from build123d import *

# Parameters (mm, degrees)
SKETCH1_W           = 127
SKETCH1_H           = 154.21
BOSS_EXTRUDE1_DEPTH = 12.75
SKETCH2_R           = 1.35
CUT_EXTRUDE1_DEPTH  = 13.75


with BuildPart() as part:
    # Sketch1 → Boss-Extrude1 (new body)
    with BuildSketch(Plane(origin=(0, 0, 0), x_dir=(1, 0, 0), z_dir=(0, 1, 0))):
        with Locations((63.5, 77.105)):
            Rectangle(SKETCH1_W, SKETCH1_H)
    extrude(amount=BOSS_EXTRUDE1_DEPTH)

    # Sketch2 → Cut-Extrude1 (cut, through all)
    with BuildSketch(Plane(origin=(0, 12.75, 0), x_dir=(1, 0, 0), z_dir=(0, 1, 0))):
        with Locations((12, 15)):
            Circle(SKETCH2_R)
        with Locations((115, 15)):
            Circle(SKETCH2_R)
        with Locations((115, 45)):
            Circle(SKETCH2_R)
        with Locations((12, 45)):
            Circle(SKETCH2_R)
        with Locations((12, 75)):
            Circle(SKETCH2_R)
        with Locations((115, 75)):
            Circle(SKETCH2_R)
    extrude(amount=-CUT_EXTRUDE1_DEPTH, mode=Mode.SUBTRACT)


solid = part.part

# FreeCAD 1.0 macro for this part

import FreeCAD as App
import Part
import Sketcher

V = App.Vector


def add_polygon(sketch, points):
    """Adds a closed chain of lines whose ends are joined by coincident constraints."""
    first, n = sketch.GeometryCount, len(points)
    for a, b in zip(points, points[1:] + points[:1]):
        sketch.addGeometry(Part.LineSegment(App.Vector(*a, 0), App.Vector(*b, 0)), False)
    for i in range(n):
        sketch.addConstraint(Sketcher.Constraint("Coincident", first + i, 2, first + (i + 1) % n, 1))

doc = App.newDocument("Part")
params = doc.addObject("Spreadsheet::Sheet", "Params")
for row, (alias, value) in enumerate([
    ("sketch1_width", "127 mm"),
    ("sketch1_height", "154.21 mm"),
    ("pad1_length", "12.75 mm"),
    ("sketch2_diameter", "2.7 mm"),
], start=1):
    params.set(f"A{row}", alias)
    params.set(f"B{row}", "=" + value)
    params.setAlias(f"B{row}", alias)

body = doc.addObject("PartDesign::Body", "Body")

sketch1 = body.newObject("Sketcher::SketchObject", "Sketch")
sketch1.AttachmentSupport = (doc.getObject("XZ_Plane"), [""])
sketch1.MapMode = "FlatFace"
add_polygon(sketch1, [(0, -154.21), (0, 0), (127, 0), (127, -154.21)])
sketch1.addConstraint([
    Sketcher.Constraint("Vertical", 0),
    Sketcher.Constraint("Horizontal", 1),
    Sketcher.Constraint("Vertical", 2),
    Sketcher.Constraint("Horizontal", 3),
    Sketcher.Constraint("Coincident", 0, 2, -1, 1),
    Sketcher.Constraint("DistanceX", 1, 1, 1, 2, 127.0),
    Sketcher.Constraint("DistanceY", 0, 1, 0, 2, 154.21),
])
sketch1.setExpression("Constraints[9]", "Params.sketch1_width")
sketch1.setExpression("Constraints[10]", "Params.sketch1_height")
pad1 = body.newObject("PartDesign::Pad", "Pad")
pad1.Profile = sketch1
pad1.setExpression("Length", "Params.pad1_length")
pad1.Reversed = True

sketch2 = body.newObject("Sketcher::SketchObject", "Sketch001")
sketch2.AttachmentSupport = (doc.getObject("XZ_Plane"), [""])
sketch2.MapMode = "FlatFace"
sketch2.AttachmentOffset = App.Placement(V(0, 0, -12.75), App.Rotation())
sketch2.addGeometry([
    Part.Circle(V(12, -15, 0), V(0, 0, 1), 1.35),
    Part.Circle(V(115, -15, 0), V(0, 0, 1), 1.35),
    Part.Circle(V(115, -45, 0), V(0, 0, 1), 1.35),
    Part.Circle(V(12, -45, 0), V(0, 0, 1), 1.35),
    Part.Circle(V(12, -75, 0), V(0, 0, 1), 1.35),
    Part.Circle(V(115, -75, 0), V(0, 0, 1), 1.35),
], False)
sketch2.addConstraint([
    Sketcher.Constraint("Equal", 0, 1),
    Sketcher.Constraint("Equal", 1, 2),
    Sketcher.Constraint("Equal", 2, 3),
    Sketcher.Constraint("Equal", 3, 4),
    Sketcher.Constraint("Equal", 4, 5),
    Sketcher.Constraint("Horizontal", 0, 3, 1, 3),
    Sketcher.Constraint("Horizontal", 2, 3, 3, 3),
    Sketcher.Constraint("Horizontal", 4, 3, 5, 3),
    Sketcher.Constraint("Vertical", 1, 3, 2, 3),
    Sketcher.Constraint("Vertical", 0, 3, 3, 3),
    Sketcher.Constraint("Vertical", 3, 3, 4, 3),
    Sketcher.Constraint("Vertical", 2, 3, 5, 3),
    Sketcher.Constraint("Diameter", 0, 2.7),
    Sketcher.Constraint("DistanceX", -1, 1, 0, 3, 12.0),
    Sketcher.Constraint("DistanceY", 0, 3, -1, 1, 15.0),
    Sketcher.Constraint("DistanceX", -1, 1, 1, 3, 115.0),
    Sketcher.Constraint("DistanceY", 2, 3, -1, 1, 45.0),
    Sketcher.Constraint("DistanceY", 4, 3, -1, 1, 75.0),
])
sketch2.setExpression("Constraints[12]", "Params.sketch2_diameter")
pocket1 = body.newObject("PartDesign::Pocket", "Pocket")
pocket1.Profile = sketch2
pocket1.Type = "ThroughAll"
pocket1.Reversed = True

doc.recompute()
